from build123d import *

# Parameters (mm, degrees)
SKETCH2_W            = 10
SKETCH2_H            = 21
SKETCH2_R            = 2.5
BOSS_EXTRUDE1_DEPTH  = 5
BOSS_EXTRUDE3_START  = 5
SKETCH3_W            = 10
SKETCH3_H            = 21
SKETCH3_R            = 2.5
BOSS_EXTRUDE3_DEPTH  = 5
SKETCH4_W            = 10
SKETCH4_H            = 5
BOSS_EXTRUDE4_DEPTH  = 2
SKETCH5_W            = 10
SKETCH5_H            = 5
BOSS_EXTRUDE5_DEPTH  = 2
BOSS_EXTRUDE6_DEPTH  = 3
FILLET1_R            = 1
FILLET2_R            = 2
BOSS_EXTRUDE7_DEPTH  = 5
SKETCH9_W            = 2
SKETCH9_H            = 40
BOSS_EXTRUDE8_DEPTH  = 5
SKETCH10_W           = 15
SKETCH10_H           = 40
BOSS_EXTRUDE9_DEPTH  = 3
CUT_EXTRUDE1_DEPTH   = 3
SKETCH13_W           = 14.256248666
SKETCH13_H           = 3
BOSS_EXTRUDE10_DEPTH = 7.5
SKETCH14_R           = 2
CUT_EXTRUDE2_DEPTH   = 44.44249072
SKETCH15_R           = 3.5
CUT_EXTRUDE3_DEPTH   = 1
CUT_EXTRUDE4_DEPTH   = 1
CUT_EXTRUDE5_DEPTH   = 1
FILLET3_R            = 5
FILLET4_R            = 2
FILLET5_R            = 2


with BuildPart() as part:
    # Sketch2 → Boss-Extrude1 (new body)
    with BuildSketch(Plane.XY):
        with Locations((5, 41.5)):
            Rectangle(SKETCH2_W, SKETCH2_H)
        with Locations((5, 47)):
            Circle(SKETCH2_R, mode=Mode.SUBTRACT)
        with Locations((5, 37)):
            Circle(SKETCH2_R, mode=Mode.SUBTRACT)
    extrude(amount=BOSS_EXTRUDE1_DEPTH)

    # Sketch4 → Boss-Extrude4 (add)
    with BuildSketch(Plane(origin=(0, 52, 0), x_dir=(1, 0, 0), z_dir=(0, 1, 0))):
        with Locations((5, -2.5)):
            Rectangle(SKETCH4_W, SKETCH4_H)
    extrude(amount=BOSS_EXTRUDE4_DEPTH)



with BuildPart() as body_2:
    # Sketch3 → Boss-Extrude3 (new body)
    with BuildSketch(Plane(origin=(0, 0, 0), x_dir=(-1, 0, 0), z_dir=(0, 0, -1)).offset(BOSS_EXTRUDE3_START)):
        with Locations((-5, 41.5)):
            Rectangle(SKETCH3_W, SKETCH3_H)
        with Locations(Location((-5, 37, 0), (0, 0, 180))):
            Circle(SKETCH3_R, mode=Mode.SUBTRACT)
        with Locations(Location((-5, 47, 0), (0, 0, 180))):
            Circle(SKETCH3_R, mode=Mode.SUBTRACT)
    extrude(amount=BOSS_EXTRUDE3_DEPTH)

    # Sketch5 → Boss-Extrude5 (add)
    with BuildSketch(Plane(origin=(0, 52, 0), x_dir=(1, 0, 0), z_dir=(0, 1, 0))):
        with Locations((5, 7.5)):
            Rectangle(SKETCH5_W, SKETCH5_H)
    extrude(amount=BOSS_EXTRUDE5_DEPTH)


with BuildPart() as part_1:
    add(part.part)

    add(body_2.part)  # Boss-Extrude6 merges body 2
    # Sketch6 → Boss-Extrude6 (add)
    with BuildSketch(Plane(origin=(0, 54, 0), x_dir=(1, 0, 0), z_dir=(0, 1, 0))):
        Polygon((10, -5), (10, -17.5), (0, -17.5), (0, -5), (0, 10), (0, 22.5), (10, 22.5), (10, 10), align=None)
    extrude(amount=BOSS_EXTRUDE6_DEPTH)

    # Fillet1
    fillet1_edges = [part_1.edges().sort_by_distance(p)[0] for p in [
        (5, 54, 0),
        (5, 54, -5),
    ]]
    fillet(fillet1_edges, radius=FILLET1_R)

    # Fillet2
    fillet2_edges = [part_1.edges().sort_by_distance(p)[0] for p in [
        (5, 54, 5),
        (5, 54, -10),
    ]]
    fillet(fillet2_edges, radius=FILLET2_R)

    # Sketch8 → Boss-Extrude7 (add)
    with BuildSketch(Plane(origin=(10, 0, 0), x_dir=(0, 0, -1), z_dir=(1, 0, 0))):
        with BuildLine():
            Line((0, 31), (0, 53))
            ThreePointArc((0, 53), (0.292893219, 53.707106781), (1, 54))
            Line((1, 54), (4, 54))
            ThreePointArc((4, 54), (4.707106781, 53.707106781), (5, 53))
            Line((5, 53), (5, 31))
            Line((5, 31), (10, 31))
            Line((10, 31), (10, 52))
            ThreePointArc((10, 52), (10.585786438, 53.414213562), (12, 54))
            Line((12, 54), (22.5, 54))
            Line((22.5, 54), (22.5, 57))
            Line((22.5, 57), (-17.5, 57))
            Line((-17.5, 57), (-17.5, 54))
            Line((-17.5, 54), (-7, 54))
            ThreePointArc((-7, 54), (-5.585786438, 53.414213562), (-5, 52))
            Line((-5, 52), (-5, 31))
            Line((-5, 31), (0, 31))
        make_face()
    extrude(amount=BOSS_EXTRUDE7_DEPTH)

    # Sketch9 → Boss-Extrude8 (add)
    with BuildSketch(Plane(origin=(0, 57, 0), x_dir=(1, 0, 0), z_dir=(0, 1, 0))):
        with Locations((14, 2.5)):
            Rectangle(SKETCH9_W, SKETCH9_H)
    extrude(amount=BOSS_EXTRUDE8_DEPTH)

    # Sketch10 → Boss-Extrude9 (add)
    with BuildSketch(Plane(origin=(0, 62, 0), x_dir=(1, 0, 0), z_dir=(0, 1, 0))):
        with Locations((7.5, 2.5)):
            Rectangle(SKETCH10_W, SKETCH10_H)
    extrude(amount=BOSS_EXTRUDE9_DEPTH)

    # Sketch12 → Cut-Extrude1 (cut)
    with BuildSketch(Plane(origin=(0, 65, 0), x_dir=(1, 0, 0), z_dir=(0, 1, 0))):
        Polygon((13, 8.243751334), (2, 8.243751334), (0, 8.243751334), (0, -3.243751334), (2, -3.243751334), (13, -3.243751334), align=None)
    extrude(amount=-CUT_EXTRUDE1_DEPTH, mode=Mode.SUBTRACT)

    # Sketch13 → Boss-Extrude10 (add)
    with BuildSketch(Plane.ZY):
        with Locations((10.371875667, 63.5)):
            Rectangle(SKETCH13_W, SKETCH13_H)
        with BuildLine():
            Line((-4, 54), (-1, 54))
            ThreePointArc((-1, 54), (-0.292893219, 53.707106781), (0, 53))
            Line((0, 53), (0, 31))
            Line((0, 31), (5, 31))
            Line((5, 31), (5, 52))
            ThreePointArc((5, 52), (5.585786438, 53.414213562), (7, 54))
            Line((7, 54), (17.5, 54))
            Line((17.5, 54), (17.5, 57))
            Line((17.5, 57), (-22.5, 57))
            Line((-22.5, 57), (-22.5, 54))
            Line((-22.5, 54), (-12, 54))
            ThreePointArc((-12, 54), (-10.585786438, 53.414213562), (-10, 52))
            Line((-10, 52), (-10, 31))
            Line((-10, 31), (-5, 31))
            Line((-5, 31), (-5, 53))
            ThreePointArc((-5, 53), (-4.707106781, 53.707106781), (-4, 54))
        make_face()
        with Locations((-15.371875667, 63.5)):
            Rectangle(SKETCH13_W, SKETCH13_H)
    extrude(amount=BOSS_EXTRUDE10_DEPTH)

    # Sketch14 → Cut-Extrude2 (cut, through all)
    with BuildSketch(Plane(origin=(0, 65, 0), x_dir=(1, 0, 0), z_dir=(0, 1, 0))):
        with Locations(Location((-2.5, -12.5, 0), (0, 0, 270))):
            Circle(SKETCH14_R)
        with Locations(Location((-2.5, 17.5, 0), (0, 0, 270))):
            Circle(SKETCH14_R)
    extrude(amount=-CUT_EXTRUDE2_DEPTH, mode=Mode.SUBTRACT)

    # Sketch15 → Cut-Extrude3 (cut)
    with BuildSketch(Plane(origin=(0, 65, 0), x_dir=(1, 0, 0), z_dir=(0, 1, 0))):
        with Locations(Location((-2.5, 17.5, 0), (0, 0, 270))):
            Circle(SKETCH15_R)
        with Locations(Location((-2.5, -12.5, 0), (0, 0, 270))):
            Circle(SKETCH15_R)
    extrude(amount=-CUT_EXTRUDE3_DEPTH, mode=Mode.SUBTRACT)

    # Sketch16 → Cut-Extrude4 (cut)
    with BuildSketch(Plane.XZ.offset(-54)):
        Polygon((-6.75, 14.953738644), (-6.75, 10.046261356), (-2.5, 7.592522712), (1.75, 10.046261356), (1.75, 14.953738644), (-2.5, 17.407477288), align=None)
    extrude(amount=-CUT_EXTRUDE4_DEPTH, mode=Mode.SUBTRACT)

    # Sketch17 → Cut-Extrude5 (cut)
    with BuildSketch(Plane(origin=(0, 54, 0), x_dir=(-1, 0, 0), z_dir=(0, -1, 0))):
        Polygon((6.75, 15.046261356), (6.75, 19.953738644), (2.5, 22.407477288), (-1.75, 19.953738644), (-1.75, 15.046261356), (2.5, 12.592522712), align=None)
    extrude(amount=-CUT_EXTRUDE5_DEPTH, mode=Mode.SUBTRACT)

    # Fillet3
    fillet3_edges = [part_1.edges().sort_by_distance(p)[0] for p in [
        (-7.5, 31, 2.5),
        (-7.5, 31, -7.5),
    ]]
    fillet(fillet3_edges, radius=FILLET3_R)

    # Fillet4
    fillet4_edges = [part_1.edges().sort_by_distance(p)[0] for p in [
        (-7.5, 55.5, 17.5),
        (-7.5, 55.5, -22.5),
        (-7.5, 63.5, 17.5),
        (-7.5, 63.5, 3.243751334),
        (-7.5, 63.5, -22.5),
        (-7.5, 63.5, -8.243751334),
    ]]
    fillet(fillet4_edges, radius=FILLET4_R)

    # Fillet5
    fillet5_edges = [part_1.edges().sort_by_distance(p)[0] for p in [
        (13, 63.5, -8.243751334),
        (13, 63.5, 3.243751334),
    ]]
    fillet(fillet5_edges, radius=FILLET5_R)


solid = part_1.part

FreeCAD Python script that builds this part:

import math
import FreeCAD as App
import Part
import Sketcher

V = App.Vector
Q = App.Units.Quantity


def edges_at(feature, points):
    """Names of the edges that pass closest to the given points."""
    edges = feature.Shape.Edges
    near = lambda p: min(range(len(edges)), key=lambda i: edges[i].distToShape(Part.Vertex(*p))[0])
    return sorted({f"Edge{near(p) + 1}" for p in points})

doc = App.newDocument("Part")
params = doc.addObject("Spreadsheet::Sheet", "Params")
for row, (alias, value) in enumerate([
    ("sketch1_diameter", "5 mm"),
    ("sketch1_width", "10 mm"),
    ("sketch1_height", "21 mm"),
    ("pad1_length", "5 mm"),
    ("sketch2_width", "10 mm"),
    ("sketch2_height", "5 mm"),
    ("pad2_length", "2 mm"),
    ("sketch3_diameter", "5 mm"),
    ("sketch3_width", "10 mm"),
    ("sketch3_height", "21 mm"),
    ("pad3_length", "5 mm"),
    ("sketch4_width", "10 mm"),
    ("sketch4_height", "5 mm"),
    ("pad4_length", "2 mm"),
    ("sketch5_width", "10 mm"),
    ("sketch5_height", "40 mm"),
    ("pad5_length", "3 mm"),
    ("fillet_radius", "1 mm"),
    ("fillet2_radius", "2 mm"),
    ("sketch6_radius", "1 mm"),
    ("sketch6_radius2", "2 mm"),
    ("sketch6_width", "22 mm"),
    ("sketch6_width2", "3 mm"),
    ("sketch6_height", "40 mm"),
    ("pad6_length", "5 mm"),
    ("sketch7_width", "2 mm"),
    ("sketch7_height", "40 mm"),
    ("pad7_length", "5 mm"),
    ("sketch8_width", "15 mm"),
    ("sketch8_height", "40 mm"),
    ("pad8_length", "3 mm"),
    ("sketch9_width", "13 mm"),
    ("pocket1_length", "3 mm"),
    ("sketch10_radius", "1 mm"),
    ("sketch10_radius2", "2 mm"),
    ("sketch10_width", "3 mm"),
    ("sketch10_width2", "22 mm"),
    ("sketch10_height", "40 mm"),
    ("pad9_length", "7.5 mm"),
    ("sketch11_diameter", "4 mm"),
    ("sketch12_diameter", "7 mm"),
    ("pocket3_length", "1 mm"),
    ("pocket4_length", "1 mm"),
    ("pocket5_length", "1 mm"),
    ("fillet3_radius", "5 mm"),
    ("fillet4_radius", "2 mm"),
    ("fillet5_radius", "2 mm"),
], start=1):
    params.set(f"A{row}", alias)
    params.set(f"B{row}", "=" + value)
    params.setAlias(f"B{row}", alias)

body = doc.addObject("PartDesign::Body", "Body")

# Sketch on XY plane
sketch1 = doc.addObject("Sketcher::SketchObject", "Sketch")
body.addObject(sketch1)
sketch1.AttachmentSupport = (doc.XY_Plane, [""])
sketch1.MapMode = "FlatFace"
sketch1.addGeometry(Part.LineSegment(V(0, 52, 0), V(0, 31, 0)), False)
sketch1.addGeometry(Part.LineSegment(V(0, 31, 0), V(10, 31, 0)), False)
sketch1.addGeometry(Part.LineSegment(V(10, 31, 0), V(10, 52, 0)), False)
sketch1.addGeometry(Part.LineSegment(V(10, 52, 0), V(0, 52, 0)), False)
sketch1.addGeometry(Part.Circle(V(5, 37, 0), V(0, 0, 1), 2.5), False)
sketch1.addGeometry(Part.Circle(V(5, 47, 0), V(0, 0, 1), 2.5), False)
sketch1.addConstraint(Sketcher.Constraint("Coincident", 0, 2, 1, 1))
sketch1.addConstraint(Sketcher.Constraint("Coincident", 1, 2, 2, 1))
sketch1.addConstraint(Sketcher.Constraint("Coincident", 2, 2, 3, 1))
sketch1.addConstraint(Sketcher.Constraint("Coincident", 3, 2, 0, 1))
sketch1.addConstraint(Sketcher.Constraint("Vertical", 0))
sketch1.addConstraint(Sketcher.Constraint("Horizontal", 1))
sketch1.addConstraint(Sketcher.Constraint("Vertical", 2))
sketch1.addConstraint(Sketcher.Constraint("Horizontal", 3))
sketch1.addConstraint(Sketcher.Constraint("Equal", 4, 5))
sketch1.addConstraint(Sketcher.Constraint("PointOnObject", 0, 2, -2))
sketch1.addConstraint(Sketcher.Constraint("Vertical", 4, 3, 5, 3))
sketch1.addConstraint(Sketcher.Constraint("Diameter", 4, Q("5 mm")))
sketch1.addConstraint(Sketcher.Constraint("DistanceX", 1, 1, 1, 2, Q("10 mm")))
sketch1.addConstraint(Sketcher.Constraint("DistanceY", 0, 2, 0, 1, Q("21 mm")))
sketch1.addConstraint(Sketcher.Constraint("DistanceX", -1, 1, 4, 3, Q("5 mm")))
sketch1.addConstraint(Sketcher.Constraint("DistanceY", -1, 1, 4, 3, Q("37 mm")))
sketch1.addConstraint(Sketcher.Constraint("DistanceY", -1, 1, 5, 3, Q("47 mm")))
sketch1.addConstraint(Sketcher.Constraint("DistanceY", -1, 1, 0, 2, Q("31 mm")))
sketch1.setExpression("Constraints[11]", "Params.sketch1_diameter")
sketch1.setExpression("Constraints[12]", "Params.sketch1_width")
sketch1.setExpression("Constraints[13]", "Params.sketch1_height")
pad1 = doc.addObject("PartDesign::Pad", "Pad")
body.addObject(pad1)
pad1.Profile = sketch1
pad1.setExpression("Length", "Params.pad1_length")

# Sketch on XZ plane
sketch2 = doc.addObject("Sketcher::SketchObject", "Sketch001")
body.addObject(sketch2)
sketch2.AttachmentSupport = (doc.XZ_Plane, [""])
sketch2.MapMode = "FlatFace"
sketch2.AttachmentOffset = App.Placement(V(0, 0, -52), App.Rotation())
sketch2.addGeometry(Part.LineSegment(V(0, 0, 0), V(0, 5, 0)), False)
sketch2.addGeometry(Part.LineSegment(V(0, 5, 0), V(10, 5, 0)), False)
sketch2.addGeometry(Part.LineSegment(V(10, 5, 0), V(10, 0, 0)), False)
sketch2.addGeometry(Part.LineSegment(V(10, 0, 0), V(0, 0, 0)), False)
sketch2.addConstraint(Sketcher.Constraint("Coincident", 0, 2, 1, 1))
sketch2.addConstraint(Sketcher.Constraint("Coincident", 1, 2, 2, 1))
sketch2.addConstraint(Sketcher.Constraint("Coincident", 2, 2, 3, 1))
sketch2.addConstraint(Sketcher.Constraint("Coincident", 3, 2, 0, 1))
sketch2.addConstraint(Sketcher.Constraint("Vertical", 0))
sketch2.addConstraint(Sketcher.Constraint("Horizontal", 1))
sketch2.addConstraint(Sketcher.Constraint("Vertical", 2))
sketch2.addConstraint(Sketcher.Constraint("Horizontal", 3))
sketch2.addConstraint(Sketcher.Constraint("Coincident", 3, 2, -1, 1))
sketch2.addConstraint(Sketcher.Constraint("DistanceX", 1, 1, 1, 2, Q("10 mm")))
sketch2.addConstraint(Sketcher.Constraint("DistanceY", 0, 1, 0, 2, Q("5 mm")))
sketch2.setExpression("Constraints[9]", "Params.sketch2_width")
sketch2.setExpression("Constraints[10]", "Params.sketch2_height")
pad2 = doc.addObject("PartDesign::Pad", "Pad001")
body.addObject(pad2)
pad2.Profile = sketch2
pad2.setExpression("Length", "Params.pad2_length")
pad2.Reversed = True
body2 = doc.addObject("PartDesign::Body", "Body001")

# Sketch on XY plane
sketch3 = doc.addObject("Sketcher::SketchObject", "Sketch002")
body2.addObject(sketch3)
sketch3.AttachmentSupport = (doc.getObject("XY_Plane001"), [""])
sketch3.MapMode = "FlatFace"
sketch3.AttachmentOffset = App.Placement(V(0, 0, -5), App.Rotation())
sketch3.addGeometry(Part.LineSegment(V(10, 52, 0), V(10, 31, 0)), False)
sketch3.addGeometry(Part.LineSegment(V(10, 31, 0), V(0, 31, 0)), False)
sketch3.addGeometry(Part.LineSegment(V(0, 31, 0), V(0, 52, 0)), False)
sketch3.addGeometry(Part.LineSegment(V(0, 52, 0), V(10, 52, 0)), False)
sketch3.addGeometry(Part.Circle(V(5, 37, 0), V(0, 0, 1), 2.5), False)
sketch3.addGeometry(Part.Circle(V(5, 47, 0), V(0, 0, 1), 2.5), False)
sketch3.addConstraint(Sketcher.Constraint("Coincident", 0, 2, 1, 1))
sketch3.addConstraint(Sketcher.Constraint("Coincident", 1, 2, 2, 1))
sketch3.addConstraint(Sketcher.Constraint("Coincident", 2, 2, 3, 1))
sketch3.addConstraint(Sketcher.Constraint("Coincident", 3, 2, 0, 1))
sketch3.addConstraint(Sketcher.Constraint("Vertical", 0))
sketch3.addConstraint(Sketcher.Constraint("Horizontal", 1))
sketch3.addConstraint(Sketcher.Constraint("Vertical", 2))
sketch3.addConstraint(Sketcher.Constraint("Horizontal", 3))
sketch3.addConstraint(Sketcher.Constraint("Equal", 4, 5))
sketch3.addConstraint(Sketcher.Constraint("PointOnObject", 1, 2, -2))
sketch3.addConstraint(Sketcher.Constraint("Vertical", 4, 3, 5, 3))
sketch3.addConstraint(Sketcher.Constraint("Diameter", 4, Q("5 mm")))
sketch3.addConstraint(Sketcher.Constraint("DistanceX", 1, 2, 1, 1, Q("10 mm")))
sketch3.addConstraint(Sketcher.Constraint("DistanceY", 0, 2, 0, 1, Q("21 mm")))
sketch3.addConstraint(Sketcher.Constraint("DistanceX", -1, 1, 4, 3, Q("5 mm")))
sketch3.addConstraint(Sketcher.Constraint("DistanceY", -1, 1, 4, 3, Q("37 mm")))
sketch3.addConstraint(Sketcher.Constraint("DistanceY", -1, 1, 5, 3, Q("47 mm")))
sketch3.addConstraint(Sketcher.Constraint("DistanceY", -1, 1, 0, 2, Q("31 mm")))
sketch3.setExpression("Constraints[11]", "Params.sketch3_diameter")
sketch3.setExpression("Constraints[12]", "Params.sketch3_width")
sketch3.setExpression("Constraints[13]", "Params.sketch3_height")
pad3 = doc.addObject("PartDesign::Pad", "Pad002")
body2.addObject(pad3)
pad3.Profile = sketch3
pad3.setExpression("Length", "Params.pad3_length")
pad3.Reversed = True

# Sketch on XZ plane
sketch4 = doc.addObject("Sketcher::SketchObject", "Sketch003")
body2.addObject(sketch4)
sketch4.AttachmentSupport = (doc.getObject("XZ_Plane001"), [""])
sketch4.MapMode = "FlatFace"
sketch4.AttachmentOffset = App.Placement(V(0, 0, -52), App.Rotation())
sketch4.addGeometry(Part.LineSegment(V(0, -10, 0), V(0, -5, 0)), False)
sketch4.addGeometry(Part.LineSegment(V(0, -5, 0), V(10, -5, 0)), False)
sketch4.addGeometry(Part.LineSegment(V(10, -5, 0), V(10, -10, 0)), False)
sketch4.addGeometry(Part.LineSegment(V(10, -10, 0), V(0, -10, 0)), False)
sketch4.addConstraint(Sketcher.Constraint("Coincident", 0, 2, 1, 1))
sketch4.addConstraint(Sketcher.Constraint("Coincident", 1, 2, 2, 1))
sketch4.addConstraint(Sketcher.Constraint("Coincident", 2, 2, 3, 1))
sketch4.addConstraint(Sketcher.Constraint("Coincident", 3, 2, 0, 1))
sketch4.addConstraint(Sketcher.Constraint("Vertical", 0))
sketch4.addConstraint(Sketcher.Constraint("Horizontal", 1))
sketch4.addConstraint(Sketcher.Constraint("Vertical", 2))
sketch4.addConstraint(Sketcher.Constraint("Horizontal", 3))
sketch4.addConstraint(Sketcher.Constraint("PointOnObject", 0, 2, -2))
sketch4.addConstraint(Sketcher.Constraint("DistanceX", 1, 1, 1, 2, Q("10 mm")))
sketch4.addConstraint(Sketcher.Constraint("DistanceY", 0, 1, 0, 2, Q("5 mm")))
sketch4.addConstraint(Sketcher.Constraint("DistanceY", 0, 2, -1, 1, Q("5 mm")))
sketch4.setExpression("Constraints[9]", "Params.sketch4_width")
sketch4.setExpression("Constraints[10]", "Params.sketch4_height")
pad4 = doc.addObject("PartDesign::Pad", "Pad003")
body2.addObject(pad4)
pad4.Profile = sketch4
pad4.setExpression("Length", "Params.pad4_length")
pad4.Reversed = True
body.AllowCompound = True
doc.recompute()

boolean = doc.addObject("PartDesign::Boolean", "Boolean")
body.addObject(boolean)
boolean.Type = "Fuse"
boolean.addObjects([body2])

# Sketch on XZ plane
sketch5 = doc.addObject("Sketcher::SketchObject", "Sketch004")
body.addObject(sketch5)
sketch5.AttachmentSupport = (doc.XZ_Plane, [""])
sketch5.MapMode = "FlatFace"
sketch5.AttachmentOffset = App.Placement(V(0, 0, -54), App.Rotation())
sketch5.addGeometry(Part.LineSegment(V(10, 17.5, 0), V(10, -22.5, 0)), False)
sketch5.addGeometry(Part.LineSegment(V(10, -22.5, 0), V(0, -22.5, 0)), False)
sketch5.addGeometry(Part.LineSegment(V(0, -22.5, 0), V(0, 17.5, 0)), False)
sketch5.addGeometry(Part.LineSegment(V(0, 17.5, 0), V(10, 17.5, 0)), False)
sketch5.addConstraint(Sketcher.Constraint("Coincident", 0, 2, 1, 1))
sketch5.addConstraint(Sketcher.Constraint("Coincident", 1, 2, 2, 1))
sketch5.addConstraint(Sketcher.Constraint("Coincident", 2, 2, 3, 1))
sketch5.addConstraint(Sketcher.Constraint("Coincident", 3, 2, 0, 1))
sketch5.addConstraint(Sketcher.Constraint("Vertical", 0))
sketch5.addConstraint(Sketcher.Constraint("Horizontal", 1))
sketch5.addConstraint(Sketcher.Constraint("Vertical", 2))
sketch5.addConstraint(Sketcher.Constraint("Horizontal", 3))
sketch5.addConstraint(Sketcher.Constraint("PointOnObject", 1, 2, -2))
sketch5.addConstraint(Sketcher.Constraint("DistanceX", 1, 2, 1, 1, Q("10 mm")))
sketch5.addConstraint(Sketcher.Constraint("DistanceY", 0, 2, 0, 1, Q("40 mm")))
sketch5.addConstraint(Sketcher.Constraint("DistanceY", 0, 2, -1, 1, Q("22.5 mm")))
sketch5.setExpression("Constraints[9]", "Params.sketch5_width")
sketch5.setExpression("Constraints[10]", "Params.sketch5_height")
pad5 = doc.addObject("PartDesign::Pad", "Pad004")
body.addObject(pad5)
pad5.Profile = sketch5
pad5.setExpression("Length", "Params.pad5_length")
pad5.Reversed = True
doc.recompute()

fillet = doc.addObject("PartDesign::Fillet", "Fillet")
body.addObject(fillet)
fillet.Base = (pad5, edges_at(pad5, [(5, 54, 0), (5, 54, -5)]))
fillet.setExpression("Radius", "Params.fillet_radius")
doc.recompute()

fillet2 = doc.addObject("PartDesign::Fillet", "Fillet001")
body.addObject(fillet2)
fillet2.Base = (fillet, edges_at(fillet, [(5, 54, 5), (5, 54, -10)]))
fillet2.setExpression("Radius", "Params.fillet2_radius")

# Sketch on YZ plane
sketch6 = doc.addObject("Sketcher::SketchObject", "Sketch005")
body.addObject(sketch6)
sketch6.AttachmentSupport = (doc.YZ_Plane, [""])
sketch6.MapMode = "FlatFace"
sketch6.AttachmentOffset = App.Placement(V(0, 0, 10), App.Rotation())
sketch6.addGeometry(Part.LineSegment(V(31, 0, 0), V(53, 0, 0)), False)
sketch6.addGeometry(Part.ArcOfCircle(Part.Circle(V(53, -1, 0), V(0, 0, 1), 1), math.radians(0), math.radians(90)), False)
sketch6.addGeometry(Part.LineSegment(V(54, -1, 0), V(54, -4, 0)), False)
sketch6.addGeometry(Part.ArcOfCircle(Part.Circle(V(53, -4, 0), V(0, 0, 1), 1), math.radians(-90), math.radians(0)), False)
sketch6.addGeometry(Part.LineSegment(V(53, -5, 0), V(31, -5, 0)), False)
sketch6.addGeometry(Part.LineSegment(V(31, -5, 0), V(31, -10, 0)), False)
sketch6.addGeometry(Part.LineSegment(V(31, -10, 0), V(52, -10, 0)), False)
sketch6.addGeometry(Part.ArcOfCircle(Part.Circle(V(52, -12, 0), V(0, 0, 1), 2), math.radians(0), math.radians(90)), False)
sketch6.addGeometry(Part.LineSegment(V(54, -12, 0), V(54, -22.5, 0)), False)
sketch6.addGeometry(Part.LineSegment(V(54, -22.5, 0), V(57, -22.5, 0)), False)
sketch6.addGeometry(Part.LineSegment(V(57, -22.5, 0), V(57, 17.5, 0)), False)
sketch6.addGeometry(Part.LineSegment(V(57, 17.5, 0), V(54, 17.5, 0)), False)
sketch6.addGeometry(Part.LineSegment(V(54, 17.5, 0), V(54, 7, 0)), False)
sketch6.addGeometry(Part.ArcOfCircle(Part.Circle(V(52, 7, 0), V(0, 0, 1), 2), math.radians(-90), math.radians(0)), False)
sketch6.addGeometry(Part.LineSegment(V(52, 5, 0), V(31, 5, 0)), False)
sketch6.addGeometry(Part.LineSegment(V(31, 5, 0), V(31, 0, 0)), False)
sketch6.addConstraint(Sketcher.Constraint("Tangent", 0, 2, 1, 2))
sketch6.addConstraint(Sketcher.Constraint("Tangent", 1, 1, 2, 1))
sketch6.addConstraint(Sketcher.Constraint("Tangent", 2, 2, 3, 2))
sketch6.addConstraint(Sketcher.Constraint("Tangent", 3, 1, 4, 1))
sketch6.addConstraint(Sketcher.Constraint("Coincident", 4, 2, 5, 1))
sketch6.addConstraint(Sketcher.Constraint("Coincident", 5, 2, 6, 1))
sketch6.addConstraint(Sketcher.Constraint("Tangent", 6, 2, 7, 2))
sketch6.addConstraint(Sketcher.Constraint("Tangent", 7, 1, 8, 1))
sketch6.addConstraint(Sketcher.Constraint("Coincident", 8, 2, 9, 1))
sketch6.addConstraint(Sketcher.Constraint("Coincident", 9, 2, 10, 1))
sketch6.addConstraint(Sketcher.Constraint("Coincident", 10, 2, 11, 1))
sketch6.addConstraint(Sketcher.Constraint("Coincident", 11, 2, 12, 1))
sketch6.addConstraint(Sketcher.Constraint("Tangent", 12, 2, 13, 2))
sketch6.addConstraint(Sketcher.Constraint("Tangent", 13, 1, 14, 1))
sketch6.addConstraint(Sketcher.Constraint("Coincident", 14, 2, 15, 1))
sketch6.addConstraint(Sketcher.Constraint("Coincident", 15, 2, 0, 1))
sketch6.addConstraint(Sketcher.Constraint("Horizontal", 0))
sketch6.addConstraint(Sketcher.Constraint("Vertical", 2))
sketch6.addConstraint(Sketcher.Constraint("Horizontal", 4))
sketch6.addConstraint(Sketcher.Constraint("Vertical", 5))
sketch6.addConstraint(Sketcher.Constraint("Horizontal", 6))
sketch6.addConstraint(Sketcher.Constraint("Vertical", 8))
sketch6.addConstraint(Sketcher.Constraint("Horizontal", 9))
sketch6.addConstraint(Sketcher.Constraint("Vertical", 10))
sketch6.addConstraint(Sketcher.Constraint("Horizontal", 11))
sketch6.addConstraint(Sketcher.Constraint("Vertical", 12))
sketch6.addConstraint(Sketcher.Constraint("Horizontal", 14))
sketch6.addConstraint(Sketcher.Constraint("Vertical", 15))
sketch6.addConstraint(Sketcher.Constraint("Equal", 1, 3))
sketch6.addConstraint(Sketcher.Constraint("Equal", 7, 13))
sketch6.addConstraint(Sketcher.Constraint("Symmetric", 4, 2, 14, 2, -1))
sketch6.addConstraint(Sketcher.Constraint("PointOnObject", 0, 2, -1))
sketch6.addConstraint(Sketcher.Constraint("Vertical", 7, 3, 13, 3))
sketch6.addConstraint(Sketcher.Constraint("Vertical", 2, 2, 7, 1))
sketch6.addConstraint(Sketcher.Constraint("Equal", 11, 2))
sketch6.addConstraint(Sketcher.Constraint("Equal", 8, 12))
sketch6.addConstraint(Sketcher.Constraint("Equal", 5, 15))
sketch6.addConstraint(Sketcher.Constraint("Radius", 1, Q("1 mm")))
sketch6.addConstraint(Sketcher.Constraint("Radius", 7, Q("2 mm")))
sketch6.addConstraint(Sketcher.Constraint("DistanceX", 0, 1, 0, 2, Q("22 mm")))
sketch6.addConstraint(Sketcher.Constraint("DistanceX", 9, 1, 9, 2, Q("3 mm")))
sketch6.addConstraint(Sketcher.Constraint("DistanceY", 10, 1, 10, 2, Q("40 mm")))
sketch6.addConstraint(Sketcher.Constraint("DistanceX", -1, 1, 1, 3, Q("53 mm")))
sketch6.setExpression("Constraints[37]", "Params.sketch6_radius")
sketch6.setExpression("Constraints[38]", "Params.sketch6_radius2")
sketch6.setExpression("Constraints[39]", "Params.sketch6_width")
sketch6.setExpression("Constraints[40]", "Params.sketch6_width2")
sketch6.setExpression("Constraints[41]", "Params.sketch6_height")
pad6 = doc.addObject("PartDesign::Pad", "Pad005")
body.addObject(pad6)
pad6.Profile = sketch6
pad6.setExpression("Length", "Params.pad6_length")

# Sketch on XZ plane
sketch7 = doc.addObject("Sketcher::SketchObject", "Sketch006")
body.addObject(sketch7)
sketch7.AttachmentSupport = (doc.XZ_Plane, [""])
sketch7.MapMode = "FlatFace"
sketch7.AttachmentOffset = App.Placement(V(0, 0, -57), App.Rotation())
sketch7.addGeometry(Part.LineSegment(V(13, -22.5, 0), V(13, 17.5, 0)), False)
sketch7.addGeometry(Part.LineSegment(V(13, 17.5, 0), V(15, 17.5, 0)), False)
sketch7.addGeometry(Part.LineSegment(V(15, 17.5, 0), V(15, -22.5, 0)), False)
sketch7.addGeometry(Part.LineSegment(V(15, -22.5, 0), V(13, -22.5, 0)), False)
sketch7.addConstraint(Sketcher.Constraint("Coincident", 0, 2, 1, 1))
sketch7.addConstraint(Sketcher.Constraint("Coincident", 1, 2, 2, 1))
sketch7.addConstraint(Sketcher.Constraint("Coincident", 2, 2, 3, 1))
sketch7.addConstraint(Sketcher.Constraint("Coincident", 3, 2, 0, 1))
sketch7.addConstraint(Sketcher.Constraint("Vertical", 0))
sketch7.addConstraint(Sketcher.Constraint("Horizontal", 1))
sketch7.addConstraint(Sketcher.Constraint("Vertical", 2))
sketch7.addConstraint(Sketcher.Constraint("Horizontal", 3))
sketch7.addConstraint(Sketcher.Constraint("DistanceX", 1, 1, 1, 2, Q("2 mm")))
sketch7.addConstraint(Sketcher.Constraint("DistanceY", 0, 1, 0, 2, Q("40 mm")))
sketch7.addConstraint(Sketcher.Constraint("DistanceX", -1, 1, 0, 2, Q("13 mm")))
sketch7.addConstraint(Sketcher.Constraint("DistanceY", -1, 1, 0, 2, Q("17.5 mm")))
sketch7.setExpression("Constraints[8]", "Params.sketch7_width")
sketch7.setExpression("Constraints[9]", "Params.sketch7_height")
pad7 = doc.addObject("PartDesign::Pad", "Pad006")
body.addObject(pad7)
pad7.Profile = sketch7
pad7.setExpression("Length", "Params.pad7_length")
pad7.Reversed = True

# Sketch on XZ plane
sketch8 = doc.addObject("Sketcher::SketchObject", "Sketch007")
body.addObject(sketch8)
sketch8.AttachmentSupport = (doc.XZ_Plane, [""])
sketch8.MapMode = "FlatFace"
sketch8.AttachmentOffset = App.Placement(V(0, 0, -62), App.Rotation())
sketch8.addGeometry(Part.LineSegment(V(0, -22.5, 0), V(0, 17.5, 0)), False)
sketch8.addGeometry(Part.LineSegment(V(0, 17.5, 0), V(15, 17.5, 0)), False)
sketch8.addGeometry(Part.LineSegment(V(15, 17.5, 0), V(15, -22.5, 0)), False)
sketch8.addGeometry(Part.LineSegment(V(15, -22.5, 0), V(0, -22.5, 0)), False)
sketch8.addConstraint(Sketcher.Constraint("Coincident", 0, 2, 1, 1))
sketch8.addConstraint(Sketcher.Constraint("Coincident", 1, 2, 2, 1))
sketch8.addConstraint(Sketcher.Constraint("Coincident", 2, 2, 3, 1))
sketch8.addConstraint(Sketcher.Constraint("Coincident", 3, 2, 0, 1))
sketch8.addConstraint(Sketcher.Constraint("Vertical", 0))
sketch8.addConstraint(Sketcher.Constraint("Horizontal", 1))
sketch8.addConstraint(Sketcher.Constraint("Vertical", 2))
sketch8.addConstraint(Sketcher.Constraint("Horizontal", 3))
sketch8.addConstraint(Sketcher.Constraint("PointOnObject", 0, 2, -2))
sketch8.addConstraint(Sketcher.Constraint("DistanceX", 1, 1, 1, 2, Q("15 mm")))
sketch8.addConstraint(Sketcher.Constraint("DistanceY", 0, 1, 0, 2, Q("40 mm")))
sketch8.addConstraint(Sketcher.Constraint("DistanceY", -1, 1, 0, 2, Q("17.5 mm")))
sketch8.setExpression("Constraints[9]", "Params.sketch8_width")
sketch8.setExpression("Constraints[10]", "Params.sketch8_height")
pad8 = doc.addObject("PartDesign::Pad", "Pad007")
body.addObject(pad8)
pad8.Profile = sketch8
pad8.setExpression("Length", "Params.pad8_length")
pad8.Reversed = True

# Sketch on XZ plane
sketch9 = doc.addObject("Sketcher::SketchObject", "Sketch008")
body.addObject(sketch9)
sketch9.AttachmentSupport = (doc.XZ_Plane, [""])
sketch9.MapMode = "FlatFace"
sketch9.AttachmentOffset = App.Placement(V(0, 0, -65), App.Rotation())
sketch9.addGeometry(Part.LineSegment(V(13, -8.243751, 0), V(0, -8.243751, 0)), False)
sketch9.addGeometry(Part.LineSegment(V(0, -8.243751, 0), V(0, 3.243751, 0)), False)
sketch9.addGeometry(Part.LineSegment(V(0, 3.243751, 0), V(13, 3.243751, 0)), False)
sketch9.addGeometry(Part.LineSegment(V(13, 3.243751, 0), V(13, -8.243751, 0)), False)
sketch9.addConstraint(Sketcher.Constraint("Coincident", 0, 2, 1, 1))
sketch9.addConstraint(Sketcher.Constraint("Coincident", 1, 2, 2, 1))
sketch9.addConstraint(Sketcher.Constraint("Coincident", 2, 2, 3, 1))
sketch9.addConstraint(Sketcher.Constraint("Coincident", 3, 2, 0, 1))
sketch9.addConstraint(Sketcher.Constraint("Horizontal", 0))
sketch9.addConstraint(Sketcher.Constraint("Vertical", 1))
sketch9.addConstraint(Sketcher.Constraint("Horizontal", 2))
sketch9.addConstraint(Sketcher.Constraint("Vertical", 3))
sketch9.addConstraint(Sketcher.Constraint("PointOnObject", 0, 2, -2))
sketch9.addConstraint(Sketcher.Constraint("DistanceX", 0, 2, 0, 1, Q("13 mm")))
sketch9.addConstraint(Sketcher.Constraint("DistanceY", 1, 1, 1, 2, Q("11.487503 mm")))
sketch9.addConstraint(Sketcher.Constraint("DistanceY", 0, 2, -1, 1, Q("8.243751 mm")))
sketch9.setExpression("Constraints[9]", "Params.sketch9_width")
pocket1 = doc.addObject("PartDesign::Pocket", "Pocket")
body.addObject(pocket1)
pocket1.Profile = sketch9
pocket1.setExpression("Length", "Params.pocket1_length")
pocket1.Reversed = True

# Sketch on YZ plane
sketch10 = doc.addObject("Sketcher::SketchObject", "Sketch009")
body.addObject(sketch10)
sketch10.AttachmentSupport = (doc.YZ_Plane, [""])
sketch10.MapMode = "FlatFace"
sketch10.addGeometry(Part.LineSegment(V(65, 3.243751, 0), V(62, 3.243751, 0)), False)
sketch10.addGeometry(Part.LineSegment(V(62, 3.243751, 0), V(62, 17.5, 0)), False)
sketch10.addGeometry(Part.LineSegment(V(62, 17.5, 0), V(65, 17.5, 0)), False)
sketch10.addGeometry(Part.LineSegment(V(65, 17.5, 0), V(65, 3.243751, 0)), False)
sketch10.addGeometry(Part.LineSegment(V(54, -4, 0), V(54, -1, 0)), False)
sketch10.addGeometry(Part.ArcOfCircle(Part.Circle(V(53, -1, 0), V(0, 0, 1), 1), math.radians(0), math.radians(90)), False)
sketch10.addGeometry(Part.LineSegment(V(53, 0, 0), V(31, 0, 0)), False)
sketch10.addGeometry(Part.LineSegment(V(31, 0, 0), V(31, 5, 0)), False)
sketch10.addGeometry(Part.LineSegment(V(31, 5, 0), V(52, 5, 0)), False)
sketch10.addGeometry(Part.ArcOfCircle(Part.Circle(V(52, 7, 0), V(0, 0, 1), 2), math.radians(-90), math.radians(0)), False)
sketch10.addGeometry(Part.LineSegment(V(54, 7, 0), V(54, 17.5, 0)), False)
sketch10.addGeometry(Part.LineSegment(V(54, 17.5, 0), V(57, 17.5, 0)), False)
sketch10.addGeometry(Part.LineSegment(V(57, 17.5, 0), V(57, -22.5, 0)), False)
sketch10.addGeometry(Part.LineSegment(V(57, -22.5, 0), V(54, -22.5, 0)), False)
sketch10.addGeometry(Part.LineSegment(V(54, -22.5, 0), V(54, -12, 0)), False)
sketch10.addGeometry(Part.ArcOfCircle(Part.Circle(V(52, -12, 0), V(0, 0, 1), 2), math.radians(0), math.radians(90)), False)
sketch10.addGeometry(Part.LineSegment(V(52, -10, 0), V(31, -10, 0)), False)
sketch10.addGeometry(Part.LineSegment(V(31, -10, 0), V(31, -5, 0)), False)
sketch10.addGeometry(Part.LineSegment(V(31, -5, 0), V(53, -5, 0)), False)
sketch10.addGeometry(Part.ArcOfCircle(Part.Circle(V(53, -4, 0), V(0, 0, 1), 1), math.radians(-90), math.radians(0)), False)
sketch10.addGeometry(Part.LineSegment(V(65, -22.5, 0), V(62, -22.5, 0)), False)
sketch10.addGeometry(Part.LineSegment(V(62, -22.5, 0), V(62, -8.243751, 0)), False)
sketch10.addGeometry(Part.LineSegment(V(62, -8.243751, 0), V(65, -8.243751, 0)), False)
sketch10.addGeometry(Part.LineSegment(V(65, -8.243751, 0), V(65, -22.5, 0)), False)
sketch10.addConstraint(Sketcher.Constraint("Coincident", 0, 2, 1, 1))
sketch10.addConstraint(Sketcher.Constraint("Coincident", 1, 2, 2, 1))
sketch10.addConstraint(Sketcher.Constraint("Coincident", 2, 2, 3, 1))
sketch10.addConstraint(Sketcher.Constraint("Coincident", 3, 2, 0, 1))
sketch10.addConstraint(Sketcher.Constraint("Tangent", 4, 2, 5, 1))
sketch10.addConstraint(Sketcher.Constraint("Tangent", 5, 2, 6, 1))
sketch10.addConstraint(Sketcher.Constraint("Coincident", 6, 2, 7, 1))
sketch10.addConstraint(Sketcher.Constraint("Coincident", 7, 2, 8, 1))
sketch10.addConstraint(Sketcher.Constraint("Tangent", 8, 2, 9, 1))
sketch10.addConstraint(Sketcher.Constraint("Tangent", 9, 2, 10, 1))
sketch10.addConstraint(Sketcher.Constraint("Coincident", 10, 2, 11, 1))
sketch10.addConstraint(Sketcher.Constraint("Coincident", 11, 2, 12, 1))
sketch10.addConstraint(Sketcher.Constraint("Coincident", 12, 2, 13, 1))
sketch10.addConstraint(Sketcher.Constraint("Coincident", 13, 2, 14, 1))
sketch10.addConstraint(Sketcher.Constraint("Tangent", 14, 2, 15, 1))
sketch10.addConstraint(Sketcher.Constraint("Tangent", 15, 2, 16, 1))
sketch10.addConstraint(Sketcher.Constraint("Coincident", 16, 2, 17, 1))
sketch10.addConstraint(Sketcher.Constraint("Coincident", 17, 2, 18, 1))
sketch10.addConstraint(Sketcher.Constraint("Tangent", 18, 2, 19, 1))
sketch10.addConstraint(Sketcher.Constraint("Tangent", 19, 2, 4, 1))
sketch10.addConstraint(Sketcher.Constraint("Coincident", 20, 2, 21, 1))
sketch10.addConstraint(Sketcher.Constraint("Coincident", 21, 2, 22, 1))
sketch10.addConstraint(Sketcher.Constraint("Coincident", 22, 2, 23, 1))
sketch10.addConstraint(Sketcher.Constraint("Coincident", 23, 2, 20, 1))
sketch10.addConstraint(Sketcher.Constraint("Horizontal", 0))
sketch10.addConstraint(Sketcher.Constraint("Vertical", 1))
sketch10.addConstraint(Sketcher.Constraint("Horizontal", 2))
sketch10.addConstraint(Sketcher.Constraint("Vertical", 3))
sketch10.addConstraint(Sketcher.Constraint("Vertical", 4))
sketch10.addConstraint(Sketcher.Constraint("Horizontal", 6))
sketch10.addConstraint(Sketcher.Constraint("Vertical", 7))
sketch10.addConstraint(Sketcher.Constraint("Horizontal", 8))
sketch10.addConstraint(Sketcher.Constraint("Vertical", 10))
sketch10.addConstraint(Sketcher.Constraint("Horizontal", 11))
sketch10.addConstraint(Sketcher.Constraint("Vertical", 12))
sketch10.addConstraint(Sketcher.Constraint("Horizontal", 13))
sketch10.addConstraint(Sketcher.Constraint("Vertical", 14))
sketch10.addConstraint(Sketcher.Constraint("Horizontal", 16))
sketch10.addConstraint(Sketcher.Constraint("Vertical", 17))
sketch10.addConstraint(Sketcher.Constraint("Horizontal", 18))
sketch10.addConstraint(Sketcher.Constraint("Horizontal", 20))
sketch10.addConstraint(Sketcher.Constraint("Vertical", 21))
sketch10.addConstraint(Sketcher.Constraint("Horizontal", 22))
sketch10.addConstraint(Sketcher.Constraint("Vertical", 23))
sketch10.addConstraint(Sketcher.Constraint("Equal", 9, 15))
sketch10.addConstraint(Sketcher.Constraint("Equal", 5, 19))
sketch10.addConstraint(Sketcher.Constraint("Symmetric", 7, 2, 17, 2, -1))
sketch10.addConstraint(Sketcher.Constraint("PointOnObject", 5, 2, -1))
sketch10.addConstraint(Sketcher.Constraint("Horizontal", 2, 2, 10, 2))
sketch10.addConstraint(Sketcher.Constraint("Horizontal", 13, 2, 20, 2))
sketch10.addConstraint(Sketcher.Constraint("Vertical", 9, 3, 15, 3))
sketch10.addConstraint(Sketcher.Constraint("Vertical", 4, 2, 9, 2))
sketch10.addConstraint(Sketcher.Constraint("Vertical", 1, 2, 20, 2))
sketch10.addConstraint(Sketcher.Constraint("Vertical", 3, 2, 22, 2))
sketch10.addConstraint(Sketcher.Constraint("Equal", 2, 11))
sketch10.addConstraint(Sketcher.Constraint("Equal", 22, 4))
sketch10.addConstraint(Sketcher.Constraint("Equal", 10, 14))
sketch10.addConstraint(Sketcher.Constraint("Equal", 7, 17))
sketch10.addConstraint(Sketcher.Constraint("Equal", 3, 21))
sketch10.addConstraint(Sketcher.Constraint("Radius", 5, Q("1 mm")))
sketch10.addConstraint(Sketcher.Constraint("Radius", 9, Q("2 mm")))
sketch10.addConstraint(Sketcher.Constraint("DistanceX", 0, 2, 0, 1, Q("3 mm")))
sketch10.addConstraint(Sketcher.Constraint("DistanceX", 6, 2, 6, 1, Q("22 mm")))
sketch10.addConstraint(Sketcher.Constraint("DistanceY", 12, 2, 12, 1, Q("40 mm")))
sketch10.addConstraint(Sketcher.Constraint("DistanceX", -1, 1, 5, 3, Q("53 mm")))
sketch10.addConstraint(Sketcher.Constraint("DistanceX", -1, 1, 0, 2, Q("62 mm")))
sketch10.addConstraint(Sketcher.Constraint("DistanceY", 1, 1, 1, 2, Q("14.256249 mm")))
sketch10.setExpression("Constraints[59]", "Params.sketch10_radius")
sketch10.setExpression("Constraints[60]", "Params.sketch10_radius2")
sketch10.setExpression("Constraints[61]", "Params.sketch10_width")
sketch10.setExpression("Constraints[62]", "Params.sketch10_width2")
sketch10.setExpression("Constraints[63]", "Params.sketch10_height")
pad9 = doc.addObject("PartDesign::Pad", "Pad008")
body.addObject(pad9)
pad9.Profile = sketch10
pad9.setExpression("Length", "Params.pad9_length")
pad9.Reversed = True

# Sketch on XZ plane
sketch11 = doc.addObject("Sketcher::SketchObject", "Sketch010")
body.addObject(sketch11)
sketch11.AttachmentSupport = (doc.XZ_Plane, [""])
sketch11.MapMode = "FlatFace"
sketch11.AttachmentOffset = App.Placement(V(0, 0, -65), App.Rotation())
sketch11.addGeometry(Part.Circle(V(-2.5, 12.5, 0), V(0, 0, 1), 2), False)
sketch11.addGeometry(Part.Circle(V(-2.5, -17.5, 0), V(0, 0, 1), 2), False)
sketch11.addConstraint(Sketcher.Constraint("Equal", 0, 1))
sketch11.addConstraint(Sketcher.Constraint("Vertical", 0, 3, 1, 3))
sketch11.addConstraint(Sketcher.Constraint("Diameter", 0, Q("4 mm")))
sketch11.addConstraint(Sketcher.Constraint("DistanceY", 1, 3, 0, 3, Q("30 mm")))
sketch11.addConstraint(Sketcher.Constraint("DistanceX", 0, 3, -1, 1, Q("2.5 mm")))
sketch11.addConstraint(Sketcher.Constraint("DistanceY", -1, 1, 0, 3, Q("12.5 mm")))
sketch11.setExpression("Constraints[2]", "Params.sketch11_diameter")
pocket2 = doc.addObject("PartDesign::Pocket", "Pocket001")
body.addObject(pocket2)
pocket2.Profile = sketch11
pocket2.Type = "ThroughAll"
pocket2.Reversed = True

# Sketch on XZ plane
sketch12 = doc.addObject("Sketcher::SketchObject", "Sketch011")
body.addObject(sketch12)
sketch12.AttachmentSupport = (doc.XZ_Plane, [""])
sketch12.MapMode = "FlatFace"
sketch12.AttachmentOffset = App.Placement(V(0, 0, -65), App.Rotation())
sketch12.addGeometry(Part.Circle(V(-2.5, -17.5, 0), V(0, 0, 1), 3.5), False)
sketch12.addGeometry(Part.Circle(V(-2.5, 12.5, 0), V(0, 0, 1), 3.5), False)
sketch12.addConstraint(Sketcher.Constraint("Equal", 0, 1))
sketch12.addConstraint(Sketcher.Constraint("Vertical", 0, 3, 1, 3))
sketch12.addConstraint(Sketcher.Constraint("Diameter", 0, Q("7 mm")))
sketch12.addConstraint(Sketcher.Constraint("DistanceY", 0, 3, 1, 3, Q("30 mm")))
sketch12.addConstraint(Sketcher.Constraint("DistanceX", 0, 3, -1, 1, Q("2.5 mm")))
sketch12.addConstraint(Sketcher.Constraint("DistanceY", 0, 3, -1, 1, Q("17.5 mm")))
sketch12.setExpression("Constraints[2]", "Params.sketch12_diameter")
pocket3 = doc.addObject("PartDesign::Pocket", "Pocket002")
body.addObject(pocket3)
pocket3.Profile = sketch12
pocket3.setExpression("Length", "Params.pocket3_length")
pocket3.Reversed = True

# Sketch on XZ plane
sketch13 = doc.addObject("Sketcher::SketchObject", "Sketch012")
body.addObject(sketch13)
sketch13.AttachmentSupport = (doc.XZ_Plane, [""])
sketch13.MapMode = "FlatFace"
sketch13.AttachmentOffset = App.Placement(V(0, 0, -54), App.Rotation())
sketch13.addGeometry(Part.LineSegment(V(-6.75, 14.953739, 0), V(-6.75, 10.046261, 0)), False)
sketch13.addGeometry(Part.LineSegment(V(-6.75, 10.046261, 0), V(-2.5, 7.592523, 0)), False)
sketch13.addGeometry(Part.LineSegment(V(-2.5, 7.592523, 0), V(1.75, 10.046261, 0)), False)
sketch13.addGeometry(Part.LineSegment(V(1.75, 10.046261, 0), V(1.75, 14.953739, 0)), False)
sketch13.addGeometry(Part.LineSegment(V(1.75, 14.953739, 0), V(-2.5, 17.407477, 0)), False)
sketch13.addGeometry(Part.LineSegment(V(-2.5, 17.407477, 0), V(-6.75, 14.953739, 0)), False)
sketch13.addConstraint(Sketcher.Constraint("Coincident", 0, 2, 1, 1))
sketch13.addConstraint(Sketcher.Constraint("Coincident", 1, 2, 2, 1))
sketch13.addConstraint(Sketcher.Constraint("Coincident", 2, 2, 3, 1))
sketch13.addConstraint(Sketcher.Constraint("Coincident", 3, 2, 4, 1))
sketch13.addConstraint(Sketcher.Constraint("Coincident", 4, 2, 5, 1))
sketch13.addConstraint(Sketcher.Constraint("Coincident", 5, 2, 0, 1))
sketch13.addConstraint(Sketcher.Constraint("Vertical", 0))
sketch13.addConstraint(Sketcher.Constraint("Vertical", 3))
sketch13.addConstraint(Sketcher.Constraint("Parallel", 1, 4))
sketch13.addConstraint(Sketcher.Constraint("Parallel", 2, 5))
sketch13.addConstraint(Sketcher.Constraint("Horizontal", 0, 2, 2, 2))
sketch13.addConstraint(Sketcher.Constraint("Horizontal", 3, 2, 5, 2))
sketch13.addConstraint(Sketcher.Constraint("Vertical", 1, 2, 4, 2))
sketch13.addConstraint(Sketcher.Constraint("Angle", 1, Q("-30 deg")))
sketch13.addConstraint(Sketcher.Constraint("DistanceX", 1, 2, -1, 1, Q("2.5 mm")))
sketch13.addConstraint(Sketcher.Constraint("DistanceX", 0, 2, 2, 2, Q("8.5 mm")))
sketch13.addConstraint(Sketcher.Constraint("DistanceY", 0, 2, 0, 1, Q("4.907477 mm")))
sketch13.addConstraint(Sketcher.Constraint("DistanceY", -1, 1, 0, 2, Q("10.046261 mm")))
pocket4 = doc.addObject("PartDesign::Pocket", "Pocket003")
body.addObject(pocket4)
pocket4.Profile = sketch13
pocket4.setExpression("Length", "Params.pocket4_length")

# Sketch on XZ plane
sketch14 = doc.addObject("Sketcher::SketchObject", "Sketch013")
body.addObject(sketch14)
sketch14.AttachmentSupport = (doc.XZ_Plane, [""])
sketch14.MapMode = "FlatFace"
sketch14.AttachmentOffset = App.Placement(V(0, 0, -54), App.Rotation())
sketch14.addGeometry(Part.LineSegment(V(-6.75, -15.046261, 0), V(-6.75, -19.953739, 0)), False)
sketch14.addGeometry(Part.LineSegment(V(-6.75, -19.953739, 0), V(-2.5, -22.407477, 0)), False)
sketch14.addGeometry(Part.LineSegment(V(-2.5, -22.407477, 0), V(1.75, -19.953739, 0)), False)
sketch14.addGeometry(Part.LineSegment(V(1.75, -19.953739, 0), V(1.75, -15.046261, 0)), False)
sketch14.addGeometry(Part.LineSegment(V(1.75, -15.046261, 0), V(-2.5, -12.592523, 0)), False)
sketch14.addGeometry(Part.LineSegment(V(-2.5, -12.592523, 0), V(-6.75, -15.046261, 0)), False)
sketch14.addConstraint(Sketcher.Constraint("Coincident", 0, 2, 1, 1))
sketch14.addConstraint(Sketcher.Constraint("Coincident", 1, 2, 2, 1))
sketch14.addConstraint(Sketcher.Constraint("Coincident", 2, 2, 3, 1))
sketch14.addConstraint(Sketcher.Constraint("Coincident", 3, 2, 4, 1))
sketch14.addConstraint(Sketcher.Constraint("Coincident", 4, 2, 5, 1))
sketch14.addConstraint(Sketcher.Constraint("Coincident", 5, 2, 0, 1))
sketch14.addConstraint(Sketcher.Constraint("Vertical", 0))
sketch14.addConstraint(Sketcher.Constraint("Vertical", 3))
sketch14.addConstraint(Sketcher.Constraint("Parallel", 1, 4))
sketch14.addConstraint(Sketcher.Constraint("Parallel", 2, 5))
sketch14.addConstraint(Sketcher.Constraint("Horizontal", 0, 2, 2, 2))
sketch14.addConstraint(Sketcher.Constraint("Horizontal", 3, 2, 5, 2))
sketch14.addConstraint(Sketcher.Constraint("Vertical", 1, 2, 4, 2))
sketch14.addConstraint(Sketcher.Constraint("Angle", 1, Q("-30 deg")))
sketch14.addConstraint(Sketcher.Constraint("DistanceX", 1, 2, -1, 1, Q("2.5 mm")))
sketch14.addConstraint(Sketcher.Constraint("DistanceX", 0, 2, 2, 2, Q("8.5 mm")))
sketch14.addConstraint(Sketcher.Constraint("DistanceY", 0, 2, 0, 1, Q("4.907477 mm")))
sketch14.addConstraint(Sketcher.Constraint("DistanceY", 0, 2, -1, 1, Q("19.953739 mm")))
pocket5 = doc.addObject("PartDesign::Pocket", "Pocket004")
body.addObject(pocket5)
pocket5.Profile = sketch14
pocket5.setExpression("Length", "Params.pocket5_length")
doc.recompute()

fillet3 = doc.addObject("PartDesign::Fillet", "Fillet002")
body.addObject(fillet3)
fillet3.Base = (pocket5, edges_at(pocket5, [(-7.5, 31, 2.5), (-7.5, 31, -7.5)]))
fillet3.setExpression("Radius", "Params.fillet3_radius")
doc.recompute()

fillet4 = doc.addObject("PartDesign::Fillet", "Fillet003")
body.addObject(fillet4)
fillet4.Base = (fillet3, edges_at(fillet3, [
    (-7.5, 55.5, 17.5),
    (-7.5, 55.5, -22.5),
    (-7.5, 63.5, 17.5),
    (-7.5, 63.5, 3.244),
    (-7.5, 63.5, -22.5),
    (-7.5, 63.5, -8.244),
]))
fillet4.setExpression("Radius", "Params.fillet4_radius")
doc.recompute()

fillet5 = doc.addObject("PartDesign::Fillet", "Fillet004")
body.addObject(fillet5)
fillet5.Base = (fillet4, edges_at(fillet4, [(13, 63.5, -8.244), (13, 63.5, 3.244)]))
fillet5.setExpression("Radius", "Params.fillet5_radius")

doc.recompute()
